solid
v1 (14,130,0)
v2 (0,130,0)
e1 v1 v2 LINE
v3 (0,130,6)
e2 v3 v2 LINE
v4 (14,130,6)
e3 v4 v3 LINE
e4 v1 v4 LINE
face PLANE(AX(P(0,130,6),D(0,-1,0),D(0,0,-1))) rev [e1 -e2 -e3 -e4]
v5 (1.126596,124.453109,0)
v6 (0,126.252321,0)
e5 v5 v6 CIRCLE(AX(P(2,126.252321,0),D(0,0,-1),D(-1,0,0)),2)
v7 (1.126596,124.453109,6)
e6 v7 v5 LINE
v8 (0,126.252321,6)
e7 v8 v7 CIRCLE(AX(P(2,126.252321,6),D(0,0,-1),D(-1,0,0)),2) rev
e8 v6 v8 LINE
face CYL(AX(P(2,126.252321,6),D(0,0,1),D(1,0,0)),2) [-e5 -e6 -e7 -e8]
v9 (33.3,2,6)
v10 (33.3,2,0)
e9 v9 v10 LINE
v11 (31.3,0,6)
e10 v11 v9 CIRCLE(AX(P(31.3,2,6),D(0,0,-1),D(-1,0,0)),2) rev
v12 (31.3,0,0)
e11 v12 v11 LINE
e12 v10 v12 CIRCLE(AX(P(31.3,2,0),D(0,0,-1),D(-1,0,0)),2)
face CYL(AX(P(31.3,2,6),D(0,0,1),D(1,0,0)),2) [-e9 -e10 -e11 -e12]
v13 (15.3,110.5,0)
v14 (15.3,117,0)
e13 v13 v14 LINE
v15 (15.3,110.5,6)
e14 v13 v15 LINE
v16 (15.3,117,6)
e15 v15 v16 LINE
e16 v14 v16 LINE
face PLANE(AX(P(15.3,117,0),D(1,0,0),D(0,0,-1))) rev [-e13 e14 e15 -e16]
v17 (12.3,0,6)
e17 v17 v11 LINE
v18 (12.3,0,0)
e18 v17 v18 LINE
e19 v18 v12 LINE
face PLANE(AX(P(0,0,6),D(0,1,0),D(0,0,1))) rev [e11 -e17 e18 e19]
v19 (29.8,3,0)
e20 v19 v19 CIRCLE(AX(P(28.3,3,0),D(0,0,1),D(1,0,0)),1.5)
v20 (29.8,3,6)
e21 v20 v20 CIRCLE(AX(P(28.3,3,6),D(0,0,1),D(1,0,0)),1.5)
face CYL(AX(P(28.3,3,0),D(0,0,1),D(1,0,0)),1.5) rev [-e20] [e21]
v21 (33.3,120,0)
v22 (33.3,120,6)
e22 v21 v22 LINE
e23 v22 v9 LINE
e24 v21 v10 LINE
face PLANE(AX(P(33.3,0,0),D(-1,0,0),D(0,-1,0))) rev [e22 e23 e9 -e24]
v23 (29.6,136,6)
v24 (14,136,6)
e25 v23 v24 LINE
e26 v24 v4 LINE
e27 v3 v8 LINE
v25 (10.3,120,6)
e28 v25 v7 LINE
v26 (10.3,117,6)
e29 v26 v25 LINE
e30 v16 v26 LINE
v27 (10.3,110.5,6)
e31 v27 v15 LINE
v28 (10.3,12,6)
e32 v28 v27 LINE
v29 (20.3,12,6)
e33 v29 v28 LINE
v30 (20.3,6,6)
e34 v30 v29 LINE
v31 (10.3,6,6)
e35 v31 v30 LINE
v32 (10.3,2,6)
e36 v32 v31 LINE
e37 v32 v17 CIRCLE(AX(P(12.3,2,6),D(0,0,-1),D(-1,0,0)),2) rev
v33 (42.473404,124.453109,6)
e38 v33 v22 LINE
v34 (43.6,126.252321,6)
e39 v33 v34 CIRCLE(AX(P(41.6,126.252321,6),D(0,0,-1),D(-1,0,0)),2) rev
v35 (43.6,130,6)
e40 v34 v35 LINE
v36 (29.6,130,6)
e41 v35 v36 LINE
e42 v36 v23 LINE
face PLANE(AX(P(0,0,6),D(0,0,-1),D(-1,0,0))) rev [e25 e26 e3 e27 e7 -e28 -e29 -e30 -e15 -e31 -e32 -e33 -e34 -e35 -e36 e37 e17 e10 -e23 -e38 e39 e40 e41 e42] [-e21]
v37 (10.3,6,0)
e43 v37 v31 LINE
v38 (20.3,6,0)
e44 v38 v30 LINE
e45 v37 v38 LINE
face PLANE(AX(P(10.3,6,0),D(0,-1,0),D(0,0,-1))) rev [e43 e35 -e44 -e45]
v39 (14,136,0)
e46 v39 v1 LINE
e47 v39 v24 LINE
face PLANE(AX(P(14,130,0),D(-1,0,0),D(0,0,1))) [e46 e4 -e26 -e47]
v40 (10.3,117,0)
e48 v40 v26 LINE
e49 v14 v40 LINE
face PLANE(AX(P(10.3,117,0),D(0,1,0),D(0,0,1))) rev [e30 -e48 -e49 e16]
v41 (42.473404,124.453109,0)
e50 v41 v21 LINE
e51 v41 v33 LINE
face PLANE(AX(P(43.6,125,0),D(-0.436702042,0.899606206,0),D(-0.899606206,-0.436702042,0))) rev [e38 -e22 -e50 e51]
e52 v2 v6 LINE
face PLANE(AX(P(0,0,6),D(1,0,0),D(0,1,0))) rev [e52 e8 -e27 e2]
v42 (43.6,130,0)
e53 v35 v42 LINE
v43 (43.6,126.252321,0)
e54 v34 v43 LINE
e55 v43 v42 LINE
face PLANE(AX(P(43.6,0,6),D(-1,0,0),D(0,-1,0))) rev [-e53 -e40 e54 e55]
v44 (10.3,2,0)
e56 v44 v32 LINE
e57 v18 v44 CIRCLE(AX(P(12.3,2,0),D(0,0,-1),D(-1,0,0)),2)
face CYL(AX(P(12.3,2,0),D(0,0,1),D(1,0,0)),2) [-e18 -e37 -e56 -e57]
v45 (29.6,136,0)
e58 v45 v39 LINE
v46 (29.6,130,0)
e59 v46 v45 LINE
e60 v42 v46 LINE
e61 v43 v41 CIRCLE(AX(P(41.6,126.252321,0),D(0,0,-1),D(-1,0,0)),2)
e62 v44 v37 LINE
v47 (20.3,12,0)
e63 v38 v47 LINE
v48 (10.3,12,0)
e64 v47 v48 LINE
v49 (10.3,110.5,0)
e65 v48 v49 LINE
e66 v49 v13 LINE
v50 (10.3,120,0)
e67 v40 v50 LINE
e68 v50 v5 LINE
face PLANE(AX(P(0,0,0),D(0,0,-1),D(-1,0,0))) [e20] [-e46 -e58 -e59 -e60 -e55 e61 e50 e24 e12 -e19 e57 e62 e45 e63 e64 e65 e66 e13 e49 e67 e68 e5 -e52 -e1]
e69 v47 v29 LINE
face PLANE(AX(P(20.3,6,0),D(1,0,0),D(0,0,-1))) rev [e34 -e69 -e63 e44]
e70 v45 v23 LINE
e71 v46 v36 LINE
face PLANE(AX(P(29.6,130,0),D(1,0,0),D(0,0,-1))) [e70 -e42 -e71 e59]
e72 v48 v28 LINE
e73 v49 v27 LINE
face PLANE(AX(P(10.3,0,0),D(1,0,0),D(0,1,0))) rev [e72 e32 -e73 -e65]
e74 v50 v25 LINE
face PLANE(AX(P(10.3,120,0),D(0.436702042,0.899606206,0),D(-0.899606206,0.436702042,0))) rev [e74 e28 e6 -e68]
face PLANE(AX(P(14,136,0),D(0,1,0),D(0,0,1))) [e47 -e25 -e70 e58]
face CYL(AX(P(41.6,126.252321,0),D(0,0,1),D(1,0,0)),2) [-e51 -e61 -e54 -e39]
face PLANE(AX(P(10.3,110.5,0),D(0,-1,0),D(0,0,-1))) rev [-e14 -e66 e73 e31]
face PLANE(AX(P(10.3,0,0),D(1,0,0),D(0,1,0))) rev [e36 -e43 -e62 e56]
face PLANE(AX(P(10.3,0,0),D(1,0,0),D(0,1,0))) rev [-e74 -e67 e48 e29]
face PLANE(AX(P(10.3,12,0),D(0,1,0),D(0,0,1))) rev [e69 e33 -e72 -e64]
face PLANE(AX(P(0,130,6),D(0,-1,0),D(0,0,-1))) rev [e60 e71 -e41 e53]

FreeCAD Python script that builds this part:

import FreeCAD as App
import Part
import Sketcher
from FreeCAD import Vector


def edges_at(feature, points):
    """Names of the edges that pass closest to the given points."""
    edges = feature.Shape.Edges
    near = lambda p: min(range(len(edges)), key=lambda i: edges[i].distToShape(Part.Vertex(*p))[0])
    return sorted({f"Edge{near(p) + 1}" for p in points})

doc = App.newDocument("Part")
body = doc.addObject("PartDesign::Body", "Body")

# Sketch on XY plane
sketch1 = doc.addObject("Sketcher::SketchObject", "Sketch")
body.addObject(sketch1)
sketch1.AttachmentSupport = (doc.XY_Plane, [""])
sketch1.MapMode = "FlatFace"
sketch1.addGeometry([
    Part.LineSegment(Vector(0, 130, 0), Vector(0, 0, 0)),
    Part.LineSegment(Vector(0, 0, 0), Vector(43.6, 0, 0)),
    Part.LineSegment(Vector(43.6, 0, 0), Vector(43.6, 130, 0)),
    Part.LineSegment(Vector(43.6, 130, 0), Vector(0, 130, 0)),
], False)
sketch1.addConstraint([
    Sketcher.Constraint("Coincident", 0, 2, 1, 1),
    Sketcher.Constraint("Coincident", 1, 2, 2, 1),
    Sketcher.Constraint("Coincident", 2, 2, 3, 1),
    Sketcher.Constraint("Coincident", 3, 2, 0, 1),
    Sketcher.Constraint("Vertical", 0),
    Sketcher.Constraint("Horizontal", 1),
    Sketcher.Constraint("Vertical", 2),
    Sketcher.Constraint("Horizontal", 3),
    Sketcher.Constraint("Coincident", 0, 2, -1, 1),
    Sketcher.Constraint("DistanceY", 0, 2, 0, 1, 130.0),
    Sketcher.Constraint("DistanceX", 1, 1, 1, 2, 43.6),
])
pad1 = doc.addObject("PartDesign::Pad", "Pad")
body.addObject(pad1)
pad1.Profile = sketch1
pad1.Length = 6

# Sketch on XY plane
sketch2 = doc.addObject("Sketcher::SketchObject", "Sketch001")
body.addObject(sketch2)
sketch2.AttachmentSupport = (doc.XY_Plane, [""])
sketch2.MapMode = "FlatFace"
sketch2.AttachmentOffset = App.Placement(Vector(0, 0, 6), App.Rotation())
sketch2.addGeometry([
    Part.LineSegment(Vector(33.3, 0, 0), Vector(43.6, 0, 0)),  # 0
    Part.LineSegment(Vector(43.6, 0, 0), Vector(43.6, 125, 0)),  # 1
    Part.LineSegment(Vector(43.6, 125, 0), Vector(33.3, 120, 0)),  # 2
    Part.LineSegment(Vector(33.3, 120, 0), Vector(33.3, 0, 0)),  # 3
    Part.LineSegment(Vector(10.3, 120, 0), Vector(0, 125, 0)),  # 4
    Part.LineSegment(Vector(0, 125, 0), Vector(0, 0, 0)),  # 5
    Part.LineSegment(Vector(0, 0, 0), Vector(10.3, 0, 0)),  # 6
    Part.LineSegment(Vector(10.3, 0, 0), Vector(10.3, 120, 0)),  # 7
], False)
sketch2.addConstraint([
    Sketcher.Constraint("Coincident", 0, 2, 1, 1),
    Sketcher.Constraint("Coincident", 1, 2, 2, 1),
    Sketcher.Constraint("Coincident", 2, 2, 3, 1),
    Sketcher.Constraint("Coincident", 3, 2, 0, 1),
    Sketcher.Constraint("Coincident", 4, 2, 5, 1),
    Sketcher.Constraint("Coincident", 5, 2, 6, 1),
    Sketcher.Constraint("Coincident", 6, 2, 7, 1),
    Sketcher.Constraint("Coincident", 7, 2, 4, 1),
    Sketcher.Constraint("Horizontal", 0),
    Sketcher.Constraint("Vertical", 1),
    Sketcher.Constraint("Vertical", 3),
    Sketcher.Constraint("Vertical", 5),
    Sketcher.Constraint("Horizontal", 6),
    Sketcher.Constraint("Vertical", 7),
    Sketcher.Constraint("Coincident", 5, 2, -1, 1),
    Sketcher.Constraint("PointOnObject", 0, 2, -1),
    Sketcher.Constraint("Horizontal", 1, 2, 4, 2),
    Sketcher.Constraint("Horizontal", 2, 2, 7, 2),
    Sketcher.Constraint("Equal", 0, 6),
    Sketcher.Constraint("DistanceY", 1, 1, 1, 2, 125.0),
    Sketcher.Constraint("DistanceY", 3, 2, 3, 1, 120.0),
    Sketcher.Constraint("DistanceX", 0, 1, 0, 2, 10.3),
    Sketcher.Constraint("DistanceX", 6, 2, 3, 2, 23.0),
])
pocket1 = doc.addObject("PartDesign::Pocket", "Pocket")
body.addObject(pocket1)
pocket1.Profile = sketch2
pocket1.Length = 6

# Sketch on XY plane
sketch3 = doc.addObject("Sketcher::SketchObject", "Sketch002")
body.addObject(sketch3)
sketch3.AttachmentSupport = (doc.XY_Plane, [""])
sketch3.MapMode = "FlatFace"
sketch3.AttachmentOffset = App.Placement(Vector(0, 0, 6), App.Rotation())
sketch3.addGeometry([
    Part.LineSegment(Vector(14, 136, 0), Vector(14, 130, 0)),
    Part.LineSegment(Vector(14, 130, 0), Vector(29.6, 130, 0)),
    Part.LineSegment(Vector(29.6, 130, 0), Vector(29.6, 136, 0)),
    Part.LineSegment(Vector(29.6, 136, 0), Vector(14, 136, 0)),
], False)
sketch3.addConstraint([
    Sketcher.Constraint("Coincident", 0, 2, 1, 1),
    Sketcher.Constraint("Coincident", 1, 2, 2, 1),
    Sketcher.Constraint("Coincident", 2, 2, 3, 1),
    Sketcher.Constraint("Coincident", 3, 2, 0, 1),
    Sketcher.Constraint("Vertical", 0),
    Sketcher.Constraint("Horizontal", 1),
    Sketcher.Constraint("Vertical", 2),
    Sketcher.Constraint("Horizontal", 3),
    Sketcher.Constraint("DistanceY", 0, 2, 0, 1, 6.0),
    Sketcher.Constraint("DistanceX", 1, 1, 1, 2, 15.6),
    Sketcher.Constraint("DistanceX", -1, 1, 0, 2, 14.0),
    Sketcher.Constraint("DistanceY", -1, 1, 0, 2, 130.0),
])
pad2 = doc.addObject("PartDesign::Pad", "Pad001")
body.addObject(pad2)
pad2.Profile = sketch3
pad2.Length = 6
pad2.Reversed = True

# Sketch on XY plane
sketch4 = doc.addObject("Sketcher::SketchObject", "Sketch003")
body.addObject(sketch4)
sketch4.AttachmentSupport = (doc.XY_Plane, [""])
sketch4.MapMode = "FlatFace"
sketch4.AttachmentOffset = App.Placement(Vector(0, 0, 6), App.Rotation())
sketch4.addGeometry([
    Part.LineSegment(Vector(10.3, 12, 0), Vector(10.3, 6, 0)),  # 0
    Part.LineSegment(Vector(10.3, 6, 0), Vector(20.3, 6, 0)),  # 1
    Part.LineSegment(Vector(20.3, 6, 0), Vector(20.3, 12, 0)),  # 2
    Part.LineSegment(Vector(20.3, 12, 0), Vector(10.3, 12, 0)),  # 3
    Part.LineSegment(Vector(10.3, 117, 0), Vector(10.3, 110.5, 0)),  # 4
    Part.LineSegment(Vector(10.3, 110.5, 0), Vector(15.3, 110.5, 0)),  # 5
    Part.LineSegment(Vector(15.3, 110.5, 0), Vector(15.3, 117, 0)),  # 6
    Part.LineSegment(Vector(15.3, 117, 0), Vector(10.3, 117, 0)),  # 7
], False)
sketch4.addConstraint([
    Sketcher.Constraint("Coincident", 0, 2, 1, 1),
    Sketcher.Constraint("Coincident", 1, 2, 2, 1),
    Sketcher.Constraint("Coincident", 2, 2, 3, 1),
    Sketcher.Constraint("Coincident", 3, 2, 0, 1),
    Sketcher.Constraint("Coincident", 4, 2, 5, 1),
    Sketcher.Constraint("Coincident", 5, 2, 6, 1),
    Sketcher.Constraint("Coincident", 6, 2, 7, 1),
    Sketcher.Constraint("Coincident", 7, 2, 4, 1),
    Sketcher.Constraint("Vertical", 0),
    Sketcher.Constraint("Horizontal", 1),
    Sketcher.Constraint("Vertical", 2),
    Sketcher.Constraint("Horizontal", 3),
    Sketcher.Constraint("Vertical", 4),
    Sketcher.Constraint("Horizontal", 5),
    Sketcher.Constraint("Vertical", 6),
    Sketcher.Constraint("Horizontal", 7),
    Sketcher.Constraint("Vertical", 3, 2, 4, 2),
    Sketcher.Constraint("DistanceX", 1, 1, 1, 2, 10.0),
    Sketcher.Constraint("DistanceX", 5, 1, 5, 2, 5.0),
    Sketcher.Constraint("DistanceY", 0, 2, 0, 1, 6.0),
    Sketcher.Constraint("DistanceY", 4, 2, 4, 1, 6.5),
    Sketcher.Constraint("DistanceY", -1, 1, 0, 2, 6.0),
    Sketcher.Constraint("DistanceY", -1, 1, 6, 2, 117.0),
    Sketcher.Constraint("DistanceX", -1, 1, 0, 2, 10.3),
])
pocket2 = doc.addObject("PartDesign::Pocket", "Pocket001")
body.addObject(pocket2)
pocket2.Profile = sketch4
pocket2.Length = 6
doc.recompute()

fillet = doc.addObject("PartDesign::Fillet", "Fillet")
body.addObject(fillet)
fillet.Base = (pocket2, edges_at(pocket2, [(33.3, 0, 3), (10.3, 0, 3)]))
fillet.Radius = 2
doc.recompute()

fillet2 = doc.addObject("PartDesign::Fillet", "Fillet001")
body.addObject(fillet2)
fillet2.Base = (fillet, edges_at(fillet, [(43.6, 125, 3), (0, 125, 3)]))
fillet2.Radius = 2

# Sketch on XY plane
sketch5 = doc.addObject("Sketcher::SketchObject", "Sketch004")
body.addObject(sketch5)
sketch5.AttachmentSupport = (doc.XY_Plane, [""])
sketch5.MapMode = "FlatFace"
sketch5.AttachmentOffset = App.Placement(Vector(0, 0, 6), App.Rotation())
sketch5.addGeometry(Part.Circle(Vector(28.3, 3, 0), Vector(0, 0, 1), 1.5), False)
sketch5.addConstraint([
    Sketcher.Constraint("Diameter", 0, 3.0),
    Sketcher.Constraint("DistanceY", -1, 1, 0, 3, 3.0),
    Sketcher.Constraint("DistanceX", -1, 1, 0, 3, 28.3),
])
pocket3 = doc.addObject("PartDesign::Pocket", "Pocket002")
body.addObject(pocket3)
pocket3.Profile = sketch5
pocket3.Length = 6

doc.recompute()
